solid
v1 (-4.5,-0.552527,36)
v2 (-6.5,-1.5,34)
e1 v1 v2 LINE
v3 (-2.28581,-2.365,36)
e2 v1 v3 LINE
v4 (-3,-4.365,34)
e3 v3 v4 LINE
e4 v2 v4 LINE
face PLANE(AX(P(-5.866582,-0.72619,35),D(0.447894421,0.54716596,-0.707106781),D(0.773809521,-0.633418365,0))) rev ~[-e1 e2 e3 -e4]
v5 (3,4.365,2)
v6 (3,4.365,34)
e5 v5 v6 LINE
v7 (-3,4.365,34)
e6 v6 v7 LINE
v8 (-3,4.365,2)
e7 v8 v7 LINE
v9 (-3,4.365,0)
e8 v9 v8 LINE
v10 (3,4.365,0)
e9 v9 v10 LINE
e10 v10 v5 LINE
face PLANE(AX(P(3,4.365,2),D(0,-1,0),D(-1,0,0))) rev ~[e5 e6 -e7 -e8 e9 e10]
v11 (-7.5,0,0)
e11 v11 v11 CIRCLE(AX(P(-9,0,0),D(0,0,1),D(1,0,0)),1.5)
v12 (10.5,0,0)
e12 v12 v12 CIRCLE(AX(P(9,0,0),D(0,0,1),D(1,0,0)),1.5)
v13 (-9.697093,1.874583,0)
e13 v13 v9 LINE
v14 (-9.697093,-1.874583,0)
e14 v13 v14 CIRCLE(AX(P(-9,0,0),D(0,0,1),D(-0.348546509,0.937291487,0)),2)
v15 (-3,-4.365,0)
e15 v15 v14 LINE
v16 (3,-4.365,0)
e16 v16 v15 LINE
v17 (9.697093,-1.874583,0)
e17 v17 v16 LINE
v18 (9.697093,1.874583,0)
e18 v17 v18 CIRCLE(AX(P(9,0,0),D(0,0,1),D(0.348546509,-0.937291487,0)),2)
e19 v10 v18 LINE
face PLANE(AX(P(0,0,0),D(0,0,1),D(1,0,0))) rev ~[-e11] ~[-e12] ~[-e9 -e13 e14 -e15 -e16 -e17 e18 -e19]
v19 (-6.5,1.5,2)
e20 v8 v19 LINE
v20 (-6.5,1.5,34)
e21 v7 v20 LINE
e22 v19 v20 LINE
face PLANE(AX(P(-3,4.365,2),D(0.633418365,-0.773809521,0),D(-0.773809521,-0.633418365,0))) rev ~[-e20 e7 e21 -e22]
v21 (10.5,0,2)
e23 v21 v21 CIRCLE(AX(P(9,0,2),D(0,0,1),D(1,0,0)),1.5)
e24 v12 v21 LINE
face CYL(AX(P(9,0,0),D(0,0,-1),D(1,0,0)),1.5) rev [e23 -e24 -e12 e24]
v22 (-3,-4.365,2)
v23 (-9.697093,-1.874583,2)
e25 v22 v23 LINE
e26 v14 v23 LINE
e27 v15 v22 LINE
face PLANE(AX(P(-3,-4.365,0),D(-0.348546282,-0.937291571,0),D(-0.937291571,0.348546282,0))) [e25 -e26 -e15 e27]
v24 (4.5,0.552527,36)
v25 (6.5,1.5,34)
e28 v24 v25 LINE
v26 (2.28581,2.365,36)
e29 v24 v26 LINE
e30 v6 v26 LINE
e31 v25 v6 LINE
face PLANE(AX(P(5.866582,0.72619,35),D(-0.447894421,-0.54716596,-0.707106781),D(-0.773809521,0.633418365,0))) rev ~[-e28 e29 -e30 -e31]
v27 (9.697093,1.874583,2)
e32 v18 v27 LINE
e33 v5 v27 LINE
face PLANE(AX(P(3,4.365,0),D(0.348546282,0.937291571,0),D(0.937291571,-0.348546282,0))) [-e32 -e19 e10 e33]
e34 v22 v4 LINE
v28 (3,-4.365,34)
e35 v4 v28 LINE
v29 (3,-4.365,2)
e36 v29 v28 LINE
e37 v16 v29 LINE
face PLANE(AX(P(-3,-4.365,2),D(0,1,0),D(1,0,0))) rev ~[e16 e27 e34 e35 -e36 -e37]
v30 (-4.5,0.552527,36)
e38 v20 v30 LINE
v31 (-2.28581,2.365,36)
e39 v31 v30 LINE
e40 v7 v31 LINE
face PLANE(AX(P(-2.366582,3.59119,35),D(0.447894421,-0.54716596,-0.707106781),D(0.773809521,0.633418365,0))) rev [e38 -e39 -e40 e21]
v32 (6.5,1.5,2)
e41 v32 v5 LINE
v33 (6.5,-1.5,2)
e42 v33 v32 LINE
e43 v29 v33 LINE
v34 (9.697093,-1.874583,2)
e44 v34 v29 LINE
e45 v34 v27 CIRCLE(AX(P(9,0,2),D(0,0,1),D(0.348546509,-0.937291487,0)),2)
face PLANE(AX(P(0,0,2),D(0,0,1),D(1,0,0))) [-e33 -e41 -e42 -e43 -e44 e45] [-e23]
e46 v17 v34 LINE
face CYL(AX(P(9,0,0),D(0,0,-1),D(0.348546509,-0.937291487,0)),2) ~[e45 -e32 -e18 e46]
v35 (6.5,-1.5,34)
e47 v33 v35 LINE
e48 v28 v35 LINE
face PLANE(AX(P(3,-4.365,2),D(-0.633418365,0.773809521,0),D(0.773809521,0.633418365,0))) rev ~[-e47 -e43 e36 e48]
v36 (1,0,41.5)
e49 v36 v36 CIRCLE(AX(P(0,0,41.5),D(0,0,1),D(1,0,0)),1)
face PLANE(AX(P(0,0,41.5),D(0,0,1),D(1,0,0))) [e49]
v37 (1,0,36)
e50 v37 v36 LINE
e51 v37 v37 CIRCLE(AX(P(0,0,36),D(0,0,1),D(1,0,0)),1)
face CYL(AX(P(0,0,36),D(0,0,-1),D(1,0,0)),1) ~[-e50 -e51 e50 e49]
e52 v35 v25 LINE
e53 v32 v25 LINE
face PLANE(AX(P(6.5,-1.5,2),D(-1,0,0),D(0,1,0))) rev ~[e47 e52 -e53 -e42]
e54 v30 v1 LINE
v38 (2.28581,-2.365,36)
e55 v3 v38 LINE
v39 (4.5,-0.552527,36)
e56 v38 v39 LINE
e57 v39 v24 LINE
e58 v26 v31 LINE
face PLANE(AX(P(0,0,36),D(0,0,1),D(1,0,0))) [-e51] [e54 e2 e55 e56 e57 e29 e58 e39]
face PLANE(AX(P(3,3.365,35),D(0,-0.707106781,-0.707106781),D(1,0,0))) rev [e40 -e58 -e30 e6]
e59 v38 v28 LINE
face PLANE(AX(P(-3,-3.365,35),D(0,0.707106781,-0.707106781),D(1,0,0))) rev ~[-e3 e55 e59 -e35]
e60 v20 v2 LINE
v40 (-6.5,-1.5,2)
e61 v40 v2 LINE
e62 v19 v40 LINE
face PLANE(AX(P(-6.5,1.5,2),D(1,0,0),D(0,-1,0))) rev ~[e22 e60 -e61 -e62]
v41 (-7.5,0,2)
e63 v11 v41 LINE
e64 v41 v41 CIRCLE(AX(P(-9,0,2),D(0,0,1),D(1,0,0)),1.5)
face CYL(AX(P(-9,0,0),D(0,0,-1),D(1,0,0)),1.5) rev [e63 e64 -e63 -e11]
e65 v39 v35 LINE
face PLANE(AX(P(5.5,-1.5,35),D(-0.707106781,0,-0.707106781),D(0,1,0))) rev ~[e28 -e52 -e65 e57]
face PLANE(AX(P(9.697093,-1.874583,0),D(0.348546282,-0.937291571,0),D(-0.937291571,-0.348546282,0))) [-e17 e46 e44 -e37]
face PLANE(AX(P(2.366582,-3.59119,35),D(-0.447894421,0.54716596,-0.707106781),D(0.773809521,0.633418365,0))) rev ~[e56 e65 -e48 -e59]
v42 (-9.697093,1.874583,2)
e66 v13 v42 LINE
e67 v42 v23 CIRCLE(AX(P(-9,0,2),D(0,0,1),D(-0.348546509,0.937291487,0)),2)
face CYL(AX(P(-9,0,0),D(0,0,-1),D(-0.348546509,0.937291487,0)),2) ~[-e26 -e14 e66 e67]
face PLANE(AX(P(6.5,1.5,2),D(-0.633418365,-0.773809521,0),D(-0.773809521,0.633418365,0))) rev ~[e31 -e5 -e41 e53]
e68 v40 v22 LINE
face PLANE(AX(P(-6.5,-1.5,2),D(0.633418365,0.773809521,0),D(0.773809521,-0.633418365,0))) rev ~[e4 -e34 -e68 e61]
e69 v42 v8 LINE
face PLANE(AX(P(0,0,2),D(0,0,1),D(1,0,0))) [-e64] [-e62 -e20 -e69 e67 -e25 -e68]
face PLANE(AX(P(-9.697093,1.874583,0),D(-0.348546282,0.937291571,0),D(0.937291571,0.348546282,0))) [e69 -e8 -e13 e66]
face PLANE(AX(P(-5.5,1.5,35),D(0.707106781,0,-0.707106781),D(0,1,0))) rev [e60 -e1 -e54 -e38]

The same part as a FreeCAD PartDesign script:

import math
import FreeCAD as App
import Part
import Sketcher
from FreeCAD import Vector


def edges_at(feature, points):
    """Names of the edges that pass closest to the given points."""
    edges = feature.Shape.Edges
    near = lambda p: min(range(len(edges)), key=lambda i: edges[i].distToShape(Part.Vertex(*p))[0])
    return sorted({f"Edge{near(p) + 1}" for p in points})


def add_polygon(sketch, points):
    """Adds a closed chain of lines whose ends are joined by coincident constraints."""
    first, n = sketch.GeometryCount, len(points)
    for a, b in zip(points, points[1:] + points[:1]):
        sketch.addGeometry(Part.LineSegment(App.Vector(*a, 0), App.Vector(*b, 0)), False)
    for i in range(n):
        sketch.addConstraint(Sketcher.Constraint("Coincident", first + i, 2, first + (i + 1) % n, 1))

doc = App.newDocument("Part")
body = doc.addObject("PartDesign::Body", "Body")

sketch1 = body.newObject("Sketcher::SketchObject", "Sketch")
sketch1.AttachmentSupport = (doc.getObject("XY_Plane"), [""])
sketch1.MapMode = "FlatFace"
sketch1.addGeometry(Part.ArcOfCircle(Part.Circle(Vector(-9, 0, 0), Vector(0, 0, 1), 2), math.radians(110), math.radians(250)), False)
sketch1.addGeometry(Part.LineSegment(Vector(-9.7, -1.9, 0), Vector(-3, -4.4, 0)), False)
sketch1.addGeometry(Part.LineSegment(Vector(-3, -4.4, 0), Vector(3, -4.4, 0)), False)
sketch1.addGeometry(Part.LineSegment(Vector(3, -4.4, 0), Vector(9.7, -1.9, 0)), False)
sketch1.addGeometry(Part.ArcOfCircle(Part.Circle(Vector(9, 0, 0), Vector(0, 0, 1), 2), math.radians(-70), math.radians(70)), False)
sketch1.addGeometry(Part.LineSegment(Vector(9.7, 1.9, 0), Vector(3, 4.4, 0)), False)
sketch1.addGeometry(Part.LineSegment(Vector(3, 4.4, 0), Vector(-3, 4.4, 0)), False)
sketch1.addGeometry(Part.LineSegment(Vector(-3, 4.4, 0), Vector(-9.7, 1.9, 0)), False)
sketch1.addGeometry(Part.Circle(Vector(-9, 0, 0), Vector(0, 0, 1), 1.5), False)
sketch1.addGeometry(Part.Circle(Vector(9, 0, 0), Vector(0, 0, 1), 1.5), False)
sketch1.addConstraint(Sketcher.Constraint("Tangent", 0, 2, 1, 1))
sketch1.addConstraint(Sketcher.Constraint("Coincident", 1, 2, 2, 1))
sketch1.addConstraint(Sketcher.Constraint("Coincident", 2, 2, 3, 1))
sketch1.addConstraint(Sketcher.Constraint("Tangent", 3, 2, 4, 1))
sketch1.addConstraint(Sketcher.Constraint("Tangent", 4, 2, 5, 1))
sketch1.addConstraint(Sketcher.Constraint("Coincident", 5, 2, 6, 1))
sketch1.addConstraint(Sketcher.Constraint("Coincident", 6, 2, 7, 1))
sketch1.addConstraint(Sketcher.Constraint("Tangent", 7, 2, 0, 1))
sketch1.addConstraint(Sketcher.Constraint("Horizontal", 2))
sketch1.addConstraint(Sketcher.Constraint("Horizontal", 6))
sketch1.addConstraint(Sketcher.Constraint("Coincident", 8, 3, 0, 3))
sketch1.addConstraint(Sketcher.Constraint("Coincident", 9, 3, 4, 3))
sketch1.addConstraint(Sketcher.Constraint("Equal", 0, 4))
sketch1.addConstraint(Sketcher.Constraint("Equal", 8, 9))
sketch1.addConstraint(Sketcher.Constraint("Symmetric", 0, 3, 4, 3, -1, 1))
sketch1.addConstraint(Sketcher.Constraint("Symmetric", 1, 2, 5, 2, -1, 1))
sketch1.addConstraint(Sketcher.Constraint("Symmetric", 0, 2, 3, 2, -2))
sketch1.addConstraint(Sketcher.Constraint("Parallel", 3, 7))
sketch1.addConstraint(Sketcher.Constraint("Diameter", 8, 3.0))
sketch1.addConstraint(Sketcher.Constraint("Radius", 0, 2.0))
sketch1.addConstraint(Sketcher.Constraint("DistanceX", 2, 1, 2, 2, 6.0))
sketch1.addConstraint(Sketcher.Constraint("DistanceX", 0, 3, -1, 1, 9.0))
sketch1.addConstraint(Sketcher.Constraint("DistanceY", 2, 2, 5, 2, 8.73))
pad1 = body.newObject("PartDesign::Pad", "Pad")
pad1.Profile = sketch1
pad1.Length = 2

sketch2 = body.newObject("Sketcher::SketchObject", "Sketch001")
sketch2.AttachmentSupport = (doc.getObject("XY_Plane"), [""])
sketch2.MapMode = "FlatFace"
sketch2.AttachmentOffset = App.Placement(Vector(0, 0, 2), App.Rotation())
add_polygon(sketch2, [(-3, 4.4), (-6.5, 1.5), (-6.5, -1.5), (-3, -4.4), (3, -4.4), (6.5, -1.5), (6.5, 1.5), (3, 4.4)])
sketch2.addConstraint(Sketcher.Constraint("Vertical", 1))
sketch2.addConstraint(Sketcher.Constraint("Horizontal", 3))
sketch2.addConstraint(Sketcher.Constraint("Vertical", 5))
sketch2.addConstraint(Sketcher.Constraint("Horizontal", 7))
sketch2.addConstraint(Sketcher.Constraint("Symmetric", 0, 2, 4, 2, -1, 1))
sketch2.addConstraint(Sketcher.Constraint("Symmetric", 2, 2, 6, 2, -1, 1))
sketch2.addConstraint(Sketcher.Constraint("Parallel", 0, 4))
sketch2.addConstraint(Sketcher.Constraint("Parallel", 2, 6))
sketch2.addConstraint(Sketcher.Constraint("Horizontal", 1, 2, 4, 2))
sketch2.addConstraint(Sketcher.Constraint("Vertical", 3, 2, 6, 2))
sketch2.addConstraint(Sketcher.Constraint("DistanceX", 3, 1, 3, 2, 6.0))
sketch2.addConstraint(Sketcher.Constraint("DistanceY", 1, 2, 1, 1, 3.0))
sketch2.addConstraint(Sketcher.Constraint("DistanceX", 1, 2, 4, 2, 13.0))
sketch2.addConstraint(Sketcher.Constraint("DistanceY", 3, 2, 6, 2, 8.73))
pad2 = body.newObject("PartDesign::Pad", "Pad001")
pad2.Profile = sketch2
pad2.Length = 34
doc.recompute()

chamfer = body.newObject("PartDesign::Chamfer", "Chamfer")
chamfer.Base = (pad2, edges_at(pad2, [
    (6.5, 0, 36),
    (4.75, -2.933, 36),
    (0, -4.365, 36),
    (-4.75, -2.933, 36),
    (-6.5, 0, 36),
    (-4.75, 2.933, 36),
    (0, 4.365, 36),
    (4.75, 2.933, 36),
]))
chamfer.Size = 2

sketch3 = body.newObject("Sketcher::SketchObject", "Sketch002")
sketch3.AttachmentSupport = (doc.getObject("XY_Plane"), [""])
sketch3.MapMode = "FlatFace"
sketch3.AttachmentOffset = App.Placement(Vector(0, 0, 36), App.Rotation())
sketch3.addGeometry(Part.Circle(Vector(0, 0, 0), Vector(0, 0, 1), 1), False)
sketch3.addConstraint(Sketcher.Constraint("Coincident", 0, 3, -1, 1))
sketch3.addConstraint(Sketcher.Constraint("Diameter", 0, 2.0))
pad3 = body.newObject("PartDesign::Pad", "Pad002")
pad3.Profile = sketch3
pad3.Length = 5.5

doc.recompute()
